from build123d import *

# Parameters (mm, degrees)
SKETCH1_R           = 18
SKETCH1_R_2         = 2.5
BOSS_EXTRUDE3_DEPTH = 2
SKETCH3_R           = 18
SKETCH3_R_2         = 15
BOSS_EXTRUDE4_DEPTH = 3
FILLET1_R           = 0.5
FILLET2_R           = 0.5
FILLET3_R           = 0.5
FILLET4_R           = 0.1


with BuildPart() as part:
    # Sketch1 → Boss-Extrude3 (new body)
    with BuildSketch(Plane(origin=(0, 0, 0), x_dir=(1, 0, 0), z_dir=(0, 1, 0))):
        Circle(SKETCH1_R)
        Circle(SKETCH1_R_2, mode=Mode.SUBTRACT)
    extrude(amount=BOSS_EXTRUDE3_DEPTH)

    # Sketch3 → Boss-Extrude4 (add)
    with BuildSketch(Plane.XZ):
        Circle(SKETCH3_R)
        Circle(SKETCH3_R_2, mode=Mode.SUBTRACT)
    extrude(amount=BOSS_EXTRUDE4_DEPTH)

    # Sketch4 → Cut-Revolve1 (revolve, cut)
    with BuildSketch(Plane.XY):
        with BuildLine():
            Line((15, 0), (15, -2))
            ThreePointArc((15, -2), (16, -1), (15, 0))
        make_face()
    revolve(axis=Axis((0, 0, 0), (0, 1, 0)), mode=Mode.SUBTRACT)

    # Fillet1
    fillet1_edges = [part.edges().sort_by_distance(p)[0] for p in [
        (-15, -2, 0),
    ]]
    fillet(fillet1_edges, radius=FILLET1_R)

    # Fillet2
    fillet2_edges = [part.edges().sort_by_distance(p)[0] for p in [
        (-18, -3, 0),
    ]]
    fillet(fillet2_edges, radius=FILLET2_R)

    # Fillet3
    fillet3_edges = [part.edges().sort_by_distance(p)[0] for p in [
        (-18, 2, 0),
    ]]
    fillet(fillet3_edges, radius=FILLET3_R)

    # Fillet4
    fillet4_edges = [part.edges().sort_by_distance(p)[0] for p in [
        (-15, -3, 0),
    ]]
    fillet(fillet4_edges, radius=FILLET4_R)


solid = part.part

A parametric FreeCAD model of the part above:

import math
import FreeCAD as App
import Part
import Sketcher


def edges_at(feature, points):
    """Names of the edges that pass closest to the given points."""
    edges = feature.Shape.Edges
    near = lambda p: min(range(len(edges)), key=lambda i: edges[i].distToShape(Part.Vertex(*p))[0])
    return sorted({f"Edge{near(p) + 1}" for p in points})

doc = App.newDocument("Part")
body = doc.addObject("PartDesign::Body", "Body")

# Sketch on XZ plane
sketch1 = body.newObject("Sketcher::SketchObject", "Sketch")
sketch1.AttachmentSupport = (doc.getObject("XZ_Plane"), [""])
sketch1.MapMode = "FlatFace"
sketch1.addGeometry([
    Part.Circle(App.Vector(0, 0, 0), App.Vector(0, 0, 1), 18),
    Part.Circle(App.Vector(0, 0, 0), App.Vector(0, 0, 1), 2.5),
], False)
sketch1.addConstraint([
    Sketcher.Constraint("Coincident", 0, 3, -1, 1),
    Sketcher.Constraint("Coincident", 1, 3, -1, 1),
    Sketcher.Constraint("Diameter", 0, 36.0),
    Sketcher.Constraint("Diameter", 1, 5.0),
])
pad1 = body.newObject("PartDesign::Pad", "Pad")
pad1.Profile = sketch1
pad1.Length = 2
pad1.Reversed = True

# Sketch on XZ plane
sketch2 = body.newObject("Sketcher::SketchObject", "Sketch001")
sketch2.AttachmentSupport = (doc.getObject("XZ_Plane"), [""])
sketch2.MapMode = "FlatFace"
sketch2.addGeometry([
    Part.Circle(App.Vector(0, 0, 0), App.Vector(0, 0, 1), 18),
    Part.Circle(App.Vector(0, 0, 0), App.Vector(0, 0, 1), 15),
], False)
sketch2.addConstraint([
    Sketcher.Constraint("Coincident", 0, 3, -1, 1),
    Sketcher.Constraint("Coincident", 1, 3, -1, 1),
    Sketcher.Constraint("Diameter", 0, 36.0),
    Sketcher.Constraint("Diameter", 1, 30.0),
])
pad2 = body.newObject("PartDesign::Pad", "Pad001")
pad2.Profile = sketch2
pad2.Length = 3

# Sketch on XY plane
sketch3 = body.newObject("Sketcher::SketchObject", "Sketch002")
sketch3.AttachmentSupport = (doc.getObject("XY_Plane"), [""])
sketch3.MapMode = "FlatFace"
sketch3.addGeometry([
    Part.LineSegment(App.Vector(15, 0, 0), App.Vector(15, -2, 0)),
    Part.ArcOfCircle(Part.Circle(App.Vector(15, -1, 0), App.Vector(0, 0, 1), 1), math.radians(-90), math.radians(90)),
], False)
sketch3.addConstraint([
    Sketcher.Constraint("Coincident", 0, 1, 1, 2),
    Sketcher.Constraint("Coincident", 1, 1, 0, 2),
    Sketcher.Constraint("Vertical", 0),
    Sketcher.Constraint("PointOnObject", 0, 1, -1),
    Sketcher.Constraint("Vertical", 1, 3, 0, 1),
    Sketcher.Constraint("Radius", 1, 1.0),
    Sketcher.Constraint("DistanceX", -1, 1, 1, 3, 15.0),
])
groove = body.newObject("PartDesign::Groove", "Groove")
groove.Profile = sketch3
groove.ReferenceAxis = (sketch3, ["V_Axis"])
groove.Angle = 360
doc.recompute()

fillet = body.newObject("PartDesign::Fillet", "Fillet")
fillet.Base = (groove, edges_at(groove, [(-15, -2, 0)]))
fillet.Radius = 0.5
doc.recompute()

fillet2 = body.newObject("PartDesign::Fillet", "Fillet001")
fillet2.Base = (fillet, edges_at(fillet, [(-18, -3, 0)]))
fillet2.Radius = 0.5
doc.recompute()

fillet3 = body.newObject("PartDesign::Fillet", "Fillet002")
fillet3.Base = (fillet2, edges_at(fillet2, [(-18, 2, 0)]))
fillet3.Radius = 0.5
doc.recompute()

fillet4 = body.newObject("PartDesign::Fillet", "Fillet003")
fillet4.Base = (fillet3, edges_at(fillet3, [(-15, -3, 0)]))
fillet4.Radius = 0.1

doc.recompute()
